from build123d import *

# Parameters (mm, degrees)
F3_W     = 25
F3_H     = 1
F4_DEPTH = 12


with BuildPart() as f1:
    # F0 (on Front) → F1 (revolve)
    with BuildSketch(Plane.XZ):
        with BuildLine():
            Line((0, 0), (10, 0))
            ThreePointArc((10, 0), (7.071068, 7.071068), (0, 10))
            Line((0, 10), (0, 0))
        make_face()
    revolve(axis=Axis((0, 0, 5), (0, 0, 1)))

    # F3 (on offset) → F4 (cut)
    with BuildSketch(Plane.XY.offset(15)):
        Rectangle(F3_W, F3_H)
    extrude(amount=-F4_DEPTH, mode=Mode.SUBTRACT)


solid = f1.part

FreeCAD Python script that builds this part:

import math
import FreeCAD as App
import Part
import Sketcher

V = App.Vector


def add_polygon(sketch, points):
    """Adds a closed chain of lines whose ends are joined by coincident constraints."""
    first, n = sketch.GeometryCount, len(points)
    for a, b in zip(points, points[1:] + points[:1]):
        sketch.addGeometry(Part.LineSegment(App.Vector(*a, 0), App.Vector(*b, 0)), False)
    for i in range(n):
        sketch.addConstraint(Sketcher.Constraint("Coincident", first + i, 2, first + (i + 1) % n, 1))

doc = App.newDocument("Part")
body = doc.addObject("PartDesign::Body", "Body")

# Sketch on XZ plane
sketch1 = body.newObject("Sketcher::SketchObject", "Sketch")
sketch1.AttachmentSupport = (doc.getObject("XZ_Plane"), [""])
sketch1.MapMode = "FlatFace"
sketch1.addGeometry(Part.LineSegment(V(0, 0, 0), V(10, 0, 0)), False)
sketch1.addGeometry(Part.ArcOfCircle(Part.Circle(V(0, 0, 0), V(0, 0, 1), 10), math.radians(0), math.radians(90)), False)
sketch1.addGeometry(Part.LineSegment(V(0, 10, 0), V(0, 0, 0)), False)
sketch1.addConstraint(Sketcher.Constraint("Coincident", 0, 2, 1, 1))
sketch1.addConstraint(Sketcher.Constraint("Coincident", 1, 2, 2, 1))
sketch1.addConstraint(Sketcher.Constraint("Coincident", 2, 2, 0, 1))
sketch1.addConstraint(Sketcher.Constraint("Horizontal", 0))
sketch1.addConstraint(Sketcher.Constraint("Vertical", 2))
sketch1.addConstraint(Sketcher.Constraint("Coincident", 1, 3, -1, 1))
sketch1.addConstraint(Sketcher.Constraint("Coincident", 2, 2, -1, 1))
sketch1.addConstraint(Sketcher.Constraint("Radius", 1, 9.999999))
revolution = body.newObject("PartDesign::Revolution", "Revolution")
revolution.Profile = sketch1
revolution.ReferenceAxis = (sketch1, ["V_Axis"])
revolution.Angle = 360

# Sketch on XY plane
sketch2 = body.newObject("Sketcher::SketchObject", "Sketch001")
sketch2.AttachmentSupport = (doc.getObject("XY_Plane"), [""])
sketch2.MapMode = "FlatFace"
sketch2.AttachmentOffset = App.Placement(V(0, 0, 15), App.Rotation())
add_polygon(sketch2, [(-12.5, 0.5), (-12.5, -0.5), (12.5, -0.5), (12.5, 0.5)])  # lines 0-3
sketch2.addConstraint(Sketcher.Constraint("Vertical", 0))
sketch2.addConstraint(Sketcher.Constraint("Horizontal", 1))
sketch2.addConstraint(Sketcher.Constraint("Vertical", 2))
sketch2.addConstraint(Sketcher.Constraint("Horizontal", 3))
sketch2.addConstraint(Sketcher.Constraint("Symmetric", 0, 2, 2, 2, -1, 1))
sketch2.addConstraint(Sketcher.Constraint("DistanceX", 1, 1, 1, 2, 25.0))
sketch2.addConstraint(Sketcher.Constraint("DistanceY", 0, 2, 0, 1, 1.0))
pocket1 = body.newObject("PartDesign::Pocket", "Pocket")
pocket1.Profile = sketch2
pocket1.Length = 12

doc.recompute()
